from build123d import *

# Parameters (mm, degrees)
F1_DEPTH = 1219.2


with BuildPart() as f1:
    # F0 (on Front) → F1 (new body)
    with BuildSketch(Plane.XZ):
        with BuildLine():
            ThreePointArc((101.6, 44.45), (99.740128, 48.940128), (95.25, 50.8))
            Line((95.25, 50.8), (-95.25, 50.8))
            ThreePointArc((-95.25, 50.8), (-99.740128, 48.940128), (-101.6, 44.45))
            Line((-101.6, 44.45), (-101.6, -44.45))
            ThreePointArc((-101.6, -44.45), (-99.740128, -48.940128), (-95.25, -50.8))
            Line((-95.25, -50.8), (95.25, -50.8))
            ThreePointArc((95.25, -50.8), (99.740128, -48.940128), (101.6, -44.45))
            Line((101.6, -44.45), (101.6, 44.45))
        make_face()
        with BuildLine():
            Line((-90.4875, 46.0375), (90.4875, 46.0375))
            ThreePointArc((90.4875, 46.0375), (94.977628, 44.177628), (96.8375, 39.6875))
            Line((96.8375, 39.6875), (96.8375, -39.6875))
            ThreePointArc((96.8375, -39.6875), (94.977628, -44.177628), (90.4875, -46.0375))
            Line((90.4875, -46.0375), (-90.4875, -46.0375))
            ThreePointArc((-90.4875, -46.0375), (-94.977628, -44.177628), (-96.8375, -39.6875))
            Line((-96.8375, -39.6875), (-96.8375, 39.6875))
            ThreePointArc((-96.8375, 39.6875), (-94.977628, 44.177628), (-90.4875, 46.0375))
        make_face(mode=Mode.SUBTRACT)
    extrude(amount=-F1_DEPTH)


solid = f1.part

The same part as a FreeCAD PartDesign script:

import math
import FreeCAD as App
import Part
import Sketcher
from FreeCAD import Vector
Q = App.Units.Quantity

doc = App.newDocument("Part")
body = doc.addObject("PartDesign::Body", "Body")

sketch1 = body.newObject("Sketcher::SketchObject", "Sketch")
sketch1.AttachmentSupport = (doc.getObject("XZ_Plane"), [""])
sketch1.MapMode = "FlatFace"
sketch1.addGeometry(Part.ArcOfCircle(Part.Circle(Vector(95, 44, 0), Vector(0, 0, 1), 6), math.radians(0), math.radians(90)), False)
sketch1.addGeometry(Part.LineSegment(Vector(95, 51, 0), Vector(-95, 51, 0)), False)
sketch1.addGeometry(Part.ArcOfCircle(Part.Circle(Vector(-95, 44, 0), Vector(0, 0, 1), 6), math.radians(90), math.radians(180)), False)
sketch1.addGeometry(Part.LineSegment(Vector(-102, 44, 0), Vector(-102, -44, 0)), False)
sketch1.addGeometry(Part.ArcOfCircle(Part.Circle(Vector(-95, -44, 0), Vector(0, 0, 1), 6), math.radians(-180), math.radians(-90)), False)
sketch1.addGeometry(Part.LineSegment(Vector(-95, -51, 0), Vector(95, -51, 0)), False)
sketch1.addGeometry(Part.ArcOfCircle(Part.Circle(Vector(95, -44, 0), Vector(0, 0, 1), 6), math.radians(-90), math.radians(0)), False)
sketch1.addGeometry(Part.LineSegment(Vector(102, -44, 0), Vector(102, 44, 0)), False)
sketch1.addGeometry(Part.ArcOfCircle(Part.Circle(Vector(-90, 40, 0), Vector(0, 0, 1), 6), math.radians(90), math.radians(180)), False)
sketch1.addGeometry(Part.LineSegment(Vector(-90, 46, 0), Vector(90, 46, 0)), False)
sketch1.addGeometry(Part.ArcOfCircle(Part.Circle(Vector(90, 40, 0), Vector(0, 0, 1), 6), math.radians(0), math.radians(90)), False)
sketch1.addGeometry(Part.LineSegment(Vector(97, 40, 0), Vector(97, -40, 0)), False)
sketch1.addGeometry(Part.ArcOfCircle(Part.Circle(Vector(90, -40, 0), Vector(0, 0, 1), 6), math.radians(-90), math.radians(0)), False)
sketch1.addGeometry(Part.LineSegment(Vector(90, -46, 0), Vector(-90, -46, 0)), False)
sketch1.addGeometry(Part.ArcOfCircle(Part.Circle(Vector(-90, -40, 0), Vector(0, 0, 1), 6), math.radians(-180), math.radians(-90)), False)
sketch1.addGeometry(Part.LineSegment(Vector(-97, -40, 0), Vector(-97, 40, 0)), False)
sketch1.addConstraint(Sketcher.Constraint("Tangent", 0, 2, 1, 1))
sketch1.addConstraint(Sketcher.Constraint("Tangent", 1, 2, 2, 1))
sketch1.addConstraint(Sketcher.Constraint("Tangent", 2, 2, 3, 1))
sketch1.addConstraint(Sketcher.Constraint("Tangent", 3, 2, 4, 1))
sketch1.addConstraint(Sketcher.Constraint("Tangent", 4, 2, 5, 1))
sketch1.addConstraint(Sketcher.Constraint("Tangent", 5, 2, 6, 1))
sketch1.addConstraint(Sketcher.Constraint("Tangent", 6, 2, 7, 1))
sketch1.addConstraint(Sketcher.Constraint("Tangent", 7, 2, 0, 1))
sketch1.addConstraint(Sketcher.Constraint("Tangent", 8, 1, 9, 1))
sketch1.addConstraint(Sketcher.Constraint("Tangent", 9, 2, 10, 2))
sketch1.addConstraint(Sketcher.Constraint("Tangent", 10, 1, 11, 1))
sketch1.addConstraint(Sketcher.Constraint("Tangent", 11, 2, 12, 2))
sketch1.addConstraint(Sketcher.Constraint("Tangent", 12, 1, 13, 1))
sketch1.addConstraint(Sketcher.Constraint("Tangent", 13, 2, 14, 2))
sketch1.addConstraint(Sketcher.Constraint("Tangent", 14, 1, 15, 1))
sketch1.addConstraint(Sketcher.Constraint("Tangent", 15, 2, 8, 2))
sketch1.addConstraint(Sketcher.Constraint("Horizontal", 1))
sketch1.addConstraint(Sketcher.Constraint("Vertical", 3))
sketch1.addConstraint(Sketcher.Constraint("Horizontal", 5))
sketch1.addConstraint(Sketcher.Constraint("Vertical", 7))
sketch1.addConstraint(Sketcher.Constraint("Horizontal", 9))
sketch1.addConstraint(Sketcher.Constraint("Vertical", 11))
sketch1.addConstraint(Sketcher.Constraint("Horizontal", 13))
sketch1.addConstraint(Sketcher.Constraint("Vertical", 15))
sketch1.addConstraint(Sketcher.Constraint("Equal", 0, 2))
sketch1.addConstraint(Sketcher.Constraint("Equal", 2, 4))
sketch1.addConstraint(Sketcher.Constraint("Equal", 4, 6))
sketch1.addConstraint(Sketcher.Constraint("Equal", 6, 8))
sketch1.addConstraint(Sketcher.Constraint("Equal", 8, 10))
sketch1.addConstraint(Sketcher.Constraint("Equal", 10, 12))
sketch1.addConstraint(Sketcher.Constraint("Equal", 12, 14))
sketch1.addConstraint(Sketcher.Constraint("Symmetric", 0, 3, 4, 3, -1, 1))
sketch1.addConstraint(Sketcher.Constraint("Symmetric", 8, 3, 12, 3, -1, 1))
sketch1.addConstraint(Sketcher.Constraint("Radius", 0, Q("0.25 in")))
sketch1.addConstraint(Sketcher.Constraint("DistanceX", 1, 2, 1, 1, Q("7.5 in")))
sketch1.addConstraint(Sketcher.Constraint("DistanceY", 3, 2, 3, 1, Q("3.5 in")))
sketch1.addConstraint(Sketcher.Constraint("DistanceX", 9, 1, 9, 2, Q("7.125 in")))
sketch1.addConstraint(Sketcher.Constraint("DistanceY", 11, 2, 11, 1, Q("3.125 in")))
pad1 = body.newObject("PartDesign::Pad", "Pad")
pad1.Profile = sketch1
pad1.Length = Q("48 in")
pad1.Reversed = True

doc.recompute()
